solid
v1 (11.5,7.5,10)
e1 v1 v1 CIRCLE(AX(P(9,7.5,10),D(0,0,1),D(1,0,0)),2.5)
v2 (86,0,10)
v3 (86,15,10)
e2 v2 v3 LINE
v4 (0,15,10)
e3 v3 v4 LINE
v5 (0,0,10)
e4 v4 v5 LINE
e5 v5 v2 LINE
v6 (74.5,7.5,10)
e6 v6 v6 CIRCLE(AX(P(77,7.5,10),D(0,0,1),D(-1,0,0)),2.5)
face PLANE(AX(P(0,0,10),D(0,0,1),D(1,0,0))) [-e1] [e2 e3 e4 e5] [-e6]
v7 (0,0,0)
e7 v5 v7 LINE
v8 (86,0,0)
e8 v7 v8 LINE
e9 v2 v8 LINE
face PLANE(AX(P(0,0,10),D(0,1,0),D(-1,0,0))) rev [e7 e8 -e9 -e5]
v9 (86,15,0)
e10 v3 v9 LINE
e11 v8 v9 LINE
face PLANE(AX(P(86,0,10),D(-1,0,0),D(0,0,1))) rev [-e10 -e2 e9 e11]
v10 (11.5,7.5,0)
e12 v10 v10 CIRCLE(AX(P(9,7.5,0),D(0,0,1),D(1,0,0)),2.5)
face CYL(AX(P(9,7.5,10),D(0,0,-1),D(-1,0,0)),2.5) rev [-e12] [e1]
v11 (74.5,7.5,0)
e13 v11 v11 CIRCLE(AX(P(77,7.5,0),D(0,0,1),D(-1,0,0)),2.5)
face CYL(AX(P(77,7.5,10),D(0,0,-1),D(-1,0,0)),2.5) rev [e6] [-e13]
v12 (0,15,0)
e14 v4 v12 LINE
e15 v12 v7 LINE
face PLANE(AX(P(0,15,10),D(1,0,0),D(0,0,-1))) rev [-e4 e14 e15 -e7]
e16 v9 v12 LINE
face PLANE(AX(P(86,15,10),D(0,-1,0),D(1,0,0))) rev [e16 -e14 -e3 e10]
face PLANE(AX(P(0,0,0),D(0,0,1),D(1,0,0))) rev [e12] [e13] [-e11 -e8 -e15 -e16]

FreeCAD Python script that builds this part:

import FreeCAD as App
import Part
import Sketcher

doc = App.newDocument("Part")
body = doc.addObject("PartDesign::Body", "Body")

# Sketch on XY plane
sketch1 = body.newObject("Sketcher::SketchObject", "Sketch")
sketch1.AttachmentSupport = (doc.getObject("XY_Plane"), [""])
sketch1.MapMode = "FlatFace"
sketch1.addGeometry(Part.LineSegment(App.Vector(0, 15, 0), App.Vector(0, 0, 0)), False)
sketch1.addGeometry(Part.LineSegment(App.Vector(0, 0, 0), App.Vector(86, 0, 0)), False)
sketch1.addGeometry(Part.LineSegment(App.Vector(86, 0, 0), App.Vector(86, 15, 0)), False)
sketch1.addGeometry(Part.LineSegment(App.Vector(86, 15, 0), App.Vector(0, 15, 0)), False)
sketch1.addGeometry(Part.Circle(App.Vector(9, 7.5, 0), App.Vector(0, 0, 1), 2.5), False)
sketch1.addGeometry(Part.Circle(App.Vector(77, 7.5, 0), App.Vector(0, 0, 1), 2.5), False)
sketch1.addConstraint(Sketcher.Constraint("Coincident", 0, 2, 1, 1))
sketch1.addConstraint(Sketcher.Constraint("Coincident", 1, 2, 2, 1))
sketch1.addConstraint(Sketcher.Constraint("Coincident", 2, 2, 3, 1))
sketch1.addConstraint(Sketcher.Constraint("Coincident", 3, 2, 0, 1))
sketch1.addConstraint(Sketcher.Constraint("Vertical", 0))
sketch1.addConstraint(Sketcher.Constraint("Horizontal", 1))
sketch1.addConstraint(Sketcher.Constraint("Vertical", 2))
sketch1.addConstraint(Sketcher.Constraint("Horizontal", 3))
sketch1.addConstraint(Sketcher.Constraint("Coincident", 0, 2, -1, 1))
sketch1.addConstraint(Sketcher.Constraint("Equal", 4, 5))
sketch1.addConstraint(Sketcher.Constraint("Horizontal", 4, 3, 5, 3))
sketch1.addConstraint(Sketcher.Constraint("Diameter", 4, 5.0))
sketch1.addConstraint(Sketcher.Constraint("DistanceX", 1, 1, 1, 2, 86.0))
sketch1.addConstraint(Sketcher.Constraint("DistanceY", 0, 2, 0, 1, 15.0))
sketch1.addConstraint(Sketcher.Constraint("DistanceX", -1, 1, 4, 3, 9.0))
sketch1.addConstraint(Sketcher.Constraint("DistanceX", -1, 1, 5, 3, 77.0))
sketch1.addConstraint(Sketcher.Constraint("DistanceY", -1, 1, 4, 3, 7.5))
pad1 = body.newObject("PartDesign::Pad", "Pad")
pad1.Profile = sketch1
pad1.Length = 10

doc.recompute()
